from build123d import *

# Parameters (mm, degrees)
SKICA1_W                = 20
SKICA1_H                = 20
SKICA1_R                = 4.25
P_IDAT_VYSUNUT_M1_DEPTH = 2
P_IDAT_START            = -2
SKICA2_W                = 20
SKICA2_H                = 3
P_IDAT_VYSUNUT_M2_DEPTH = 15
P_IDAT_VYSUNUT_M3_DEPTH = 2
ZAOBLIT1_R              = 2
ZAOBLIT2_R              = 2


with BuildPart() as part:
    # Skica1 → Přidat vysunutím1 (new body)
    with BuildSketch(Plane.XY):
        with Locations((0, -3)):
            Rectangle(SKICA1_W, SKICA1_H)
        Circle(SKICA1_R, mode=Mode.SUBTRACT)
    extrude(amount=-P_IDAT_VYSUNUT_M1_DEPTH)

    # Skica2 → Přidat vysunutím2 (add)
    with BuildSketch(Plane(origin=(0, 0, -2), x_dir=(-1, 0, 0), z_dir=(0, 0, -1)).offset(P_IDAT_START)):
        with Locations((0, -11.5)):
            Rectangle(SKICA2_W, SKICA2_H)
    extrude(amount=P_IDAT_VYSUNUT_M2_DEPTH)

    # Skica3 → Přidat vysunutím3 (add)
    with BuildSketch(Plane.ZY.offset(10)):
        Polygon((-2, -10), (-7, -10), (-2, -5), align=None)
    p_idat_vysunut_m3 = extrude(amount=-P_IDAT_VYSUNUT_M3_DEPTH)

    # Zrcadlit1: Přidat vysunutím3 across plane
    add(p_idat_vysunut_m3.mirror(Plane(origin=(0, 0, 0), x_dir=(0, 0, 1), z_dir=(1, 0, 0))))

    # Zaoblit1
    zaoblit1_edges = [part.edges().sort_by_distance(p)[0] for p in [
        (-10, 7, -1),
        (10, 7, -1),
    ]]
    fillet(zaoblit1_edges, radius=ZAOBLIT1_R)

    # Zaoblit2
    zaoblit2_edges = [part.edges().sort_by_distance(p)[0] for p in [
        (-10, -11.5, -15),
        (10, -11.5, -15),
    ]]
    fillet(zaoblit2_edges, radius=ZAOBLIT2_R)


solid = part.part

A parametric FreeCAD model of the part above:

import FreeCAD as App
import Part
import Sketcher

V = App.Vector
Q = App.Units.Quantity


def edges_at(feature, points):
    """Names of the edges that pass closest to the given points."""
    edges = feature.Shape.Edges
    near = lambda p: min(range(len(edges)), key=lambda i: edges[i].distToShape(Part.Vertex(*p))[0])
    return sorted({f"Edge{near(p) + 1}" for p in points})


def add_polygon(sketch, points):
    """Adds a closed chain of lines whose ends are joined by coincident constraints."""
    first, n = sketch.GeometryCount, len(points)
    for a, b in zip(points, points[1:] + points[:1]):
        sketch.addGeometry(Part.LineSegment(App.Vector(*a, 0), App.Vector(*b, 0)), False)
    for i in range(n):
        sketch.addConstraint(Sketcher.Constraint("Coincident", first + i, 2, first + (i + 1) % n, 1))

doc = App.newDocument("Part")
body = doc.addObject("PartDesign::Body", "Body")

sketch1 = body.newObject("Sketcher::SketchObject", "Sketch")
sketch1.AttachmentSupport = (doc.getObject("XY_Plane"), [""])
sketch1.MapMode = "FlatFace"
add_polygon(sketch1, [(-10, 7), (-10, -13), (10, -13), (10, 7)])
sketch1.addGeometry(Part.Circle(V(0, 0, 0), V(0, 0, 1), 4.25), False)
sketch1.addConstraint([
    Sketcher.Constraint("Vertical", 0),
    Sketcher.Constraint("Horizontal", 1),
    Sketcher.Constraint("Vertical", 2),
    Sketcher.Constraint("Horizontal", 3),
    Sketcher.Constraint("Coincident", 4, 3, -1, 1),
    Sketcher.Constraint("Equal", 3, 0),
    Sketcher.Constraint("Diameter", 4, Q("8.5 mm")),
    Sketcher.Constraint("DistanceX", 1, 1, 1, 2, Q("20 mm")),
    Sketcher.Constraint("DistanceX", 0, 2, -1, 1, Q("10 mm")),
    Sketcher.Constraint("DistanceY", 0, 2, -1, 1, Q("13 mm")),
])
pad1 = body.newObject("PartDesign::Pad", "Pad")
pad1.Profile = sketch1
pad1.Length = 2
pad1.Reversed = True

sketch2 = body.newObject("Sketcher::SketchObject", "Sketch001")
sketch2.AttachmentSupport = (doc.getObject("XY_Plane"), [""])
sketch2.MapMode = "FlatFace"
add_polygon(sketch2, [(10, -10), (10, -13), (-10, -13), (-10, -10)])
sketch2.addConstraint([
    Sketcher.Constraint("Vertical", 0),
    Sketcher.Constraint("Horizontal", 1),
    Sketcher.Constraint("Vertical", 2),
    Sketcher.Constraint("Horizontal", 3),
    Sketcher.Constraint("DistanceX", 1, 2, 1, 1, Q("20 mm")),
    Sketcher.Constraint("DistanceY", 0, 2, 0, 1, Q("3 mm")),
    Sketcher.Constraint("DistanceX", -1, 1, 0, 2, Q("10 mm")),
    Sketcher.Constraint("DistanceY", 0, 2, -1, 1, Q("13 mm")),
])
pad2 = body.newObject("PartDesign::Pad", "Pad001")
pad2.Profile = sketch2
pad2.Length = 15
pad2.Reversed = True

sketch3 = body.newObject("Sketcher::SketchObject", "Sketch002")
sketch3.AttachmentSupport = (doc.getObject("YZ_Plane"), [""])
sketch3.MapMode = "FlatFace"
sketch3.AttachmentOffset = App.Placement(V(0, 0, -10), App.Rotation())
add_polygon(sketch3, [(-10, -7), (-10, -2), (-5, -2)])
sketch3.addConstraint([
    Sketcher.Constraint("Vertical", 0),
    Sketcher.Constraint("Horizontal", 1),
    Sketcher.Constraint("Equal", 1, 0),
    Sketcher.Constraint("DistanceX", 1, 1, 1, 2, Q("5 mm")),
    Sketcher.Constraint("DistanceX", 0, 2, -1, 1, Q("10 mm")),
    Sketcher.Constraint("DistanceY", 0, 2, -1, 1, Q("2 mm")),
])
pad3 = body.newObject("PartDesign::Pad", "Pad002")
pad3.Profile = sketch3
pad3.Length = 2
doc.recompute()

mirrored = body.newObject("PartDesign::Mirrored", "Mirrored")
mirrored.Originals = [pad3]
mirrored.MirrorPlane = (doc.getObject("YZ_Plane"), [""])
body.Tip = mirrored
doc.recompute()

fillet = body.newObject("PartDesign::Fillet", "Fillet")
fillet.Base = (mirrored, edges_at(mirrored, [(-10, 7, -1), (10, 7, -1)]))
fillet.Radius = 2
doc.recompute()

fillet2 = body.newObject("PartDesign::Fillet", "Fillet001")
fillet2.Base = (fillet, edges_at(fillet, [(-10, -11.5, -15), (10, -11.5, -15)]))
fillet2.Radius = 2

doc.recompute()
